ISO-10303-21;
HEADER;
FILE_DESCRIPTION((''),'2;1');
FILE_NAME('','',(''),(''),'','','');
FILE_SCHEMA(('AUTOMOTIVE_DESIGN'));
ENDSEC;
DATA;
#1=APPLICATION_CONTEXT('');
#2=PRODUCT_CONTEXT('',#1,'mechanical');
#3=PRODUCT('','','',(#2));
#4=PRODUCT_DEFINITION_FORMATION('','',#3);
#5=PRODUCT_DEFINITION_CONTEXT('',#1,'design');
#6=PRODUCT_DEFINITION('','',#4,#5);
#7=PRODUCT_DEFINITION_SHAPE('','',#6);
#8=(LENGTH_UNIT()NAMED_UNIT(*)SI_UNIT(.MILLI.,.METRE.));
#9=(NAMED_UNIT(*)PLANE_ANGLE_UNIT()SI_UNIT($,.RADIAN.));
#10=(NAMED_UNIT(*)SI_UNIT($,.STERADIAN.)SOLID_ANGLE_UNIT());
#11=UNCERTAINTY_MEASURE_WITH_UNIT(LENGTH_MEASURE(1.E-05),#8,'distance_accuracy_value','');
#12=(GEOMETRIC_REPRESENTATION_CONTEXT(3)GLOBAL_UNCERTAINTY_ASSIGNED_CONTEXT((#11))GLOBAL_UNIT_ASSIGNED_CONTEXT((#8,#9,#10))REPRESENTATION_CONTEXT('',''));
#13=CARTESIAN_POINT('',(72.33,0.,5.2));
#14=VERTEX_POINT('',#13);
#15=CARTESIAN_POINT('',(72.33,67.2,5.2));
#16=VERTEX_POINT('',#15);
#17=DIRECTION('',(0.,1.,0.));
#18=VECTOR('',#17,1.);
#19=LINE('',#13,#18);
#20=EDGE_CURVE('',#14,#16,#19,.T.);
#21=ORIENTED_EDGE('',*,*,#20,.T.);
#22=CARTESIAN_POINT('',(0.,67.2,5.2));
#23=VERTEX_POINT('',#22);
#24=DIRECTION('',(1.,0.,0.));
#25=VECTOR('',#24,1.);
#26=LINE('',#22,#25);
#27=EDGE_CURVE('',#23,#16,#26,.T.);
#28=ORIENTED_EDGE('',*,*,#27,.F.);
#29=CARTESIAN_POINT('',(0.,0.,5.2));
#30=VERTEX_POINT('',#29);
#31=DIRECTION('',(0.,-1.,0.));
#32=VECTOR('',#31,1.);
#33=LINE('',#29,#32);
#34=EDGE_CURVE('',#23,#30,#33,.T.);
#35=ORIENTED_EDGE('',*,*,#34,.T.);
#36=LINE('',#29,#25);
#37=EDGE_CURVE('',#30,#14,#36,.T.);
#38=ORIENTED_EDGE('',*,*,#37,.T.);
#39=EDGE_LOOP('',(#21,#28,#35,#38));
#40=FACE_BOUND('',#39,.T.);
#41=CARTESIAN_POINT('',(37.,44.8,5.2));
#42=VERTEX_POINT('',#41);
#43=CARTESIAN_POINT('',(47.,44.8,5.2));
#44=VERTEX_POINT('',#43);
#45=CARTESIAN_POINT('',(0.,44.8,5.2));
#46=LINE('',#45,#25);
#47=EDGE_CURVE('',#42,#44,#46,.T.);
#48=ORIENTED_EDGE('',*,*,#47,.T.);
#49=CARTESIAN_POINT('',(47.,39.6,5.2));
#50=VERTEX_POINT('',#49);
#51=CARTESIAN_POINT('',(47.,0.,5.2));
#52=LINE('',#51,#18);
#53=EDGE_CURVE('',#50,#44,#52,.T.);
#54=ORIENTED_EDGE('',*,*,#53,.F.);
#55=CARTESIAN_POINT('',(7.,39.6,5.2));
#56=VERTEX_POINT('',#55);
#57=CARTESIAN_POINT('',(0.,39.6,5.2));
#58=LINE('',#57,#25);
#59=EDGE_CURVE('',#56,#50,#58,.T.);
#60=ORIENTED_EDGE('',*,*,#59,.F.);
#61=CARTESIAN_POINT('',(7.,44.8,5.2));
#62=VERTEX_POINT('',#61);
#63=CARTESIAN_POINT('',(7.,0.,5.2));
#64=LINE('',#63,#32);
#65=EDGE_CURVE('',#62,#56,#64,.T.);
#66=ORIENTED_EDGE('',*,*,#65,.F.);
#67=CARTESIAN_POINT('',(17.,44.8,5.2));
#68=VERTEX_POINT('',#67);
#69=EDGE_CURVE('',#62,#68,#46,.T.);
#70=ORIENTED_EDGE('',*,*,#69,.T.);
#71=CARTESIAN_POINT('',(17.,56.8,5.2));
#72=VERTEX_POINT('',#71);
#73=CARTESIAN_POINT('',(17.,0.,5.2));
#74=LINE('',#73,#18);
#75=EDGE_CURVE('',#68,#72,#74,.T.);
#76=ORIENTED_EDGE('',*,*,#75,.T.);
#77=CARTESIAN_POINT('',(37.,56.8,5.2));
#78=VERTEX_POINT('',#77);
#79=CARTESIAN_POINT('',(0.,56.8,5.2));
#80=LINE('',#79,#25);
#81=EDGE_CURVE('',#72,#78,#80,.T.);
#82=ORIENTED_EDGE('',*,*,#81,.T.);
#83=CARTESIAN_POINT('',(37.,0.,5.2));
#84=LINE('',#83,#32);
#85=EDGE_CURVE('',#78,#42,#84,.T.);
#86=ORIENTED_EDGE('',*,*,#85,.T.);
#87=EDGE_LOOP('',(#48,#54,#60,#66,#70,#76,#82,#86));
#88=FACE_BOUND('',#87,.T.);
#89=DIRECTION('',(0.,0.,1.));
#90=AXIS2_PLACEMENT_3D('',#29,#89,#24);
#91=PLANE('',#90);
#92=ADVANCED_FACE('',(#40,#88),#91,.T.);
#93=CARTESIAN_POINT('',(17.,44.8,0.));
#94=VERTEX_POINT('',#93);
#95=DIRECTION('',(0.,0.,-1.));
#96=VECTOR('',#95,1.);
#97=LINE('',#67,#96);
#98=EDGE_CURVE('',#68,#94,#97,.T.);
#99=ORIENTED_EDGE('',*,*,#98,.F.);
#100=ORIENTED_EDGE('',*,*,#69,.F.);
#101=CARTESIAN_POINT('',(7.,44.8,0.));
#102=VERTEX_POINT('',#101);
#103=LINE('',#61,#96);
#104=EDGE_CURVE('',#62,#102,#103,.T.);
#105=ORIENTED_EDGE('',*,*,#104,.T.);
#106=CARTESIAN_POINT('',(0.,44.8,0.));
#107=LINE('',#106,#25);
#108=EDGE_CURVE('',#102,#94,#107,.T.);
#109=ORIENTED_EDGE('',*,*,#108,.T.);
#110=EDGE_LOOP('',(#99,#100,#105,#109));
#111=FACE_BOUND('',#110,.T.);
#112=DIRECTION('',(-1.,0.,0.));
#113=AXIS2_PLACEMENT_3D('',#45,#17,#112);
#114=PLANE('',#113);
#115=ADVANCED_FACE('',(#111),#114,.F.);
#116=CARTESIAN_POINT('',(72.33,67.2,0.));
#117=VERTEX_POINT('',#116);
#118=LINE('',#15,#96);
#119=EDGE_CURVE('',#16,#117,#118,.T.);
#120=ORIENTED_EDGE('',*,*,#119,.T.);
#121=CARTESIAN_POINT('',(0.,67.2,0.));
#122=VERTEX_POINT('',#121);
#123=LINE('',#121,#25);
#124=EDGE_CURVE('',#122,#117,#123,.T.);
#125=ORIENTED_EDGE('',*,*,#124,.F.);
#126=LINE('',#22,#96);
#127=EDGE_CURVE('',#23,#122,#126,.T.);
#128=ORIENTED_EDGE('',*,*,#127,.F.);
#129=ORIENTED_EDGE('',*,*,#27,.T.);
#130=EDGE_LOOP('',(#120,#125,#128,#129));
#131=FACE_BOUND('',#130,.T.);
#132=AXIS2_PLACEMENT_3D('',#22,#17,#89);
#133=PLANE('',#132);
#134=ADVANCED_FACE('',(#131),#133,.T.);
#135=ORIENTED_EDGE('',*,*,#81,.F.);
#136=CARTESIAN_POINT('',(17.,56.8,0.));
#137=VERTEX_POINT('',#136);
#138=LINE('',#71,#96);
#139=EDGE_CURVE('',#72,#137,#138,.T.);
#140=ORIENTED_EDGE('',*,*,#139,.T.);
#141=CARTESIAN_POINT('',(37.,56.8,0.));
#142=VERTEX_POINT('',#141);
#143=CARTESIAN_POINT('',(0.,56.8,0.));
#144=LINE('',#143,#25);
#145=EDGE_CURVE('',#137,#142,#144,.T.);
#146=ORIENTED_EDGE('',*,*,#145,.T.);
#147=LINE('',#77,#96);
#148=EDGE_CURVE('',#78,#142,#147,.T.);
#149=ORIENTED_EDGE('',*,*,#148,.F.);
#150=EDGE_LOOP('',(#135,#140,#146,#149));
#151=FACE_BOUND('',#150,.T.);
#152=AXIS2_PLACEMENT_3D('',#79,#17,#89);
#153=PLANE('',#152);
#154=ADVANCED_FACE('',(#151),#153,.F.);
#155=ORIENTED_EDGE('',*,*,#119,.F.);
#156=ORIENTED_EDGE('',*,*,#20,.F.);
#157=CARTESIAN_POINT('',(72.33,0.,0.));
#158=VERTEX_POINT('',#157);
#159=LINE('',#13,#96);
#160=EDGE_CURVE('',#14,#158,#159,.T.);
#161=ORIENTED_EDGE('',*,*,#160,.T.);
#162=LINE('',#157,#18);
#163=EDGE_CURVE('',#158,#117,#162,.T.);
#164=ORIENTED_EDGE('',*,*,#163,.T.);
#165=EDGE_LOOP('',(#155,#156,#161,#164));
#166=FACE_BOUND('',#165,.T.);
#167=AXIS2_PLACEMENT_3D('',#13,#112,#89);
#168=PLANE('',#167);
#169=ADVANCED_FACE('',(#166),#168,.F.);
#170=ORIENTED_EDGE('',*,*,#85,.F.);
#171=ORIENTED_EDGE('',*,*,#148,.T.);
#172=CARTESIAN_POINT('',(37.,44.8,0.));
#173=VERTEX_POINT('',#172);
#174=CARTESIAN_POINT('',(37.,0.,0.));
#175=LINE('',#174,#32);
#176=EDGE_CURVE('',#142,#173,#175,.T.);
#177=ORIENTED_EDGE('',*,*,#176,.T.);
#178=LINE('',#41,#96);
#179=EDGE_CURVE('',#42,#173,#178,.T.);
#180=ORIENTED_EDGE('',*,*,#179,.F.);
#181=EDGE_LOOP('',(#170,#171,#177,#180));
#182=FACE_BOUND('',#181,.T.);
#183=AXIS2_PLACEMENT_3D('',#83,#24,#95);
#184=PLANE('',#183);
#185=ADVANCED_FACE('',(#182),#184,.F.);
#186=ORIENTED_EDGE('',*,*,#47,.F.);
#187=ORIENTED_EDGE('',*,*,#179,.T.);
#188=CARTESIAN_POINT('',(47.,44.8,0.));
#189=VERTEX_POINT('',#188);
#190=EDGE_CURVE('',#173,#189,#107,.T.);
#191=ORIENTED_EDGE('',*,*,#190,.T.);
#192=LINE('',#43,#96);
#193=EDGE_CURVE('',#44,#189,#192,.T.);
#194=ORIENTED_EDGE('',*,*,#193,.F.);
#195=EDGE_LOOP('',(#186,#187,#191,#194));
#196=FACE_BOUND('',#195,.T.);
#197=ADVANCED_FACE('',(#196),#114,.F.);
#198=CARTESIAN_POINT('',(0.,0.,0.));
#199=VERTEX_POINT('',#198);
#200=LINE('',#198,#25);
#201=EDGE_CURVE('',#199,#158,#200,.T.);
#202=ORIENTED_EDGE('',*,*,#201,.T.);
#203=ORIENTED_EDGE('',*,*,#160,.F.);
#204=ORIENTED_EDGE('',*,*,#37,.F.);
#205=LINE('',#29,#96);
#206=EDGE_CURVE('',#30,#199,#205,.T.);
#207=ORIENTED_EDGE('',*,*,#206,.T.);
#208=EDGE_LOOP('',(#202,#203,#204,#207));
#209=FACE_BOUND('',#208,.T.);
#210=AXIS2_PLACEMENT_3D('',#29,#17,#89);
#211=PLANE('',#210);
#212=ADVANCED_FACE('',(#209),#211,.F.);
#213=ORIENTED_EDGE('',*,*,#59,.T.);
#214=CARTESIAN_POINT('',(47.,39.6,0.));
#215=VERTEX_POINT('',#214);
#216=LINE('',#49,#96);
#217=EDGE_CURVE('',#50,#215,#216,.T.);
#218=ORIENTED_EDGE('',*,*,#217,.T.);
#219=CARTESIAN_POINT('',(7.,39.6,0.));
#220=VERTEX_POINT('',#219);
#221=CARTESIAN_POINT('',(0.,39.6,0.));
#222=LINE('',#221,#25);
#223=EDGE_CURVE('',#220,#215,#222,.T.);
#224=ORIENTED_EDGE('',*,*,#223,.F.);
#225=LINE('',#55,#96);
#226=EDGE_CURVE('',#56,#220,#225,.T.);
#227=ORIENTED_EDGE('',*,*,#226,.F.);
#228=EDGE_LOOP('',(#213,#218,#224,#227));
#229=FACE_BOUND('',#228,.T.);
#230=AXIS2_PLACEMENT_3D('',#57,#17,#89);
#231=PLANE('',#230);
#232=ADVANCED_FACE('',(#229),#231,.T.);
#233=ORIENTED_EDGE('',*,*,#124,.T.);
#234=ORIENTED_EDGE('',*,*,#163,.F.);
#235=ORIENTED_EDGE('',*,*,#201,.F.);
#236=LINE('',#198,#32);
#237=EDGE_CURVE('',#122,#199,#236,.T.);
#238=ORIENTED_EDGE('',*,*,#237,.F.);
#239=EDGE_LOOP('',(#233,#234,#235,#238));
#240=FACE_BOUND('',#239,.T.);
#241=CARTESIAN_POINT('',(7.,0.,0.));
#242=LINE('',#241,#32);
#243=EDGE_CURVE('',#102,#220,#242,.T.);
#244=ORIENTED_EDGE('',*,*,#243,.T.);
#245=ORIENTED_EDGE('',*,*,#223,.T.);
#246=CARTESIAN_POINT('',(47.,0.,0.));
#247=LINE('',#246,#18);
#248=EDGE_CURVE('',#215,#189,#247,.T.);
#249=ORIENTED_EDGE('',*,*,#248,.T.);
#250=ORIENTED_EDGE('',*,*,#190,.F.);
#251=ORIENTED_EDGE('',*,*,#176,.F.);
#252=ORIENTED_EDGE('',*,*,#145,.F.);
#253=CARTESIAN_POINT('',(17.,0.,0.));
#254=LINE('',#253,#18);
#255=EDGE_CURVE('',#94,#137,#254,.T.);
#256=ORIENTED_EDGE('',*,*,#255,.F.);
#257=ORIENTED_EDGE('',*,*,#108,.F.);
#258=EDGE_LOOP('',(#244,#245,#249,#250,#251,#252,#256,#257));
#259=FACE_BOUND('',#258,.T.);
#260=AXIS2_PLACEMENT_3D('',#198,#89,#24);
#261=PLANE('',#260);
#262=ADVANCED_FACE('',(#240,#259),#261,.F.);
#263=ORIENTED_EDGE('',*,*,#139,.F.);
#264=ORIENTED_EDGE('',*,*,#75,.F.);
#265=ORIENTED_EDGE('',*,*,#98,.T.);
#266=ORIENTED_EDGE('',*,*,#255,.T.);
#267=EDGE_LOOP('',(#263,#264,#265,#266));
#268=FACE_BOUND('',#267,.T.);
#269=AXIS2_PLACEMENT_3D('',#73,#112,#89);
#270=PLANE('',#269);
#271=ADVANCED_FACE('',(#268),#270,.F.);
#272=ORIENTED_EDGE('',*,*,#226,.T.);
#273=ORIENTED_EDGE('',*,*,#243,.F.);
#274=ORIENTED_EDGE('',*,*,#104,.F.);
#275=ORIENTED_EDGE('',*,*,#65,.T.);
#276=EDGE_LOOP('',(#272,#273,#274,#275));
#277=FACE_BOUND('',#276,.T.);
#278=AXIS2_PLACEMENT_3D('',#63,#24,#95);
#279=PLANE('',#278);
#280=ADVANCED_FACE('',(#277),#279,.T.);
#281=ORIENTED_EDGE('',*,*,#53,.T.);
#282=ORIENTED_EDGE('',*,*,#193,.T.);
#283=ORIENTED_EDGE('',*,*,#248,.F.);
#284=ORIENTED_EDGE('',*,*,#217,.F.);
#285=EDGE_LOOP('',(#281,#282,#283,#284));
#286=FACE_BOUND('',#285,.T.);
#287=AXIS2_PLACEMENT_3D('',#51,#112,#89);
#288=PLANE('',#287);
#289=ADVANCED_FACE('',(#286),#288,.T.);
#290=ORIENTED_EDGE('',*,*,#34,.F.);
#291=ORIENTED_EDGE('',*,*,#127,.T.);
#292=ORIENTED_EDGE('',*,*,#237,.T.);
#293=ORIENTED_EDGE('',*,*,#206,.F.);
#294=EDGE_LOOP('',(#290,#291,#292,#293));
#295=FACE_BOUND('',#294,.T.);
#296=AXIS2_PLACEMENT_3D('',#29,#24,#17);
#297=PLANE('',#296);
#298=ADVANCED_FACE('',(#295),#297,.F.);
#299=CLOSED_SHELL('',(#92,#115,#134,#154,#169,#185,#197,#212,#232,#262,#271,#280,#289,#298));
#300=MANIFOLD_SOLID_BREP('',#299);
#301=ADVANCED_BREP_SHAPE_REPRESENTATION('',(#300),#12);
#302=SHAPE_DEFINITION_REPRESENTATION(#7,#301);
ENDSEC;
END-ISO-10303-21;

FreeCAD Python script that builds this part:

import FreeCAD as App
import Part
import Sketcher
from FreeCAD import Vector

doc = App.newDocument("Part")
body = doc.addObject("PartDesign::Body", "Body")

sketch1 = doc.addObject("Sketcher::SketchObject", "Sketch")
body.addObject(sketch1)
sketch1.AttachmentSupport = (doc.XY_Plane, [""])
sketch1.MapMode = "FlatFace"
sketch1.addGeometry([
    Part.LineSegment(Vector(0, 0, 0), Vector(72, 0, 0)),
    Part.LineSegment(Vector(72, 0, 0), Vector(72, 67, 0)),
    Part.LineSegment(Vector(72, 67, 0), Vector(0, 67, 0)),
    Part.LineSegment(Vector(0, 67, 0), Vector(0, 0, 0)),
    Part.LineSegment(Vector(17, 57, 0), Vector(37, 57, 0)),
    Part.LineSegment(Vector(37, 57, 0), Vector(37, 45, 0)),
    Part.LineSegment(Vector(37, 45, 0), Vector(47, 45, 0)),
    Part.LineSegment(Vector(47, 45, 0), Vector(47, 40, 0)),
    Part.LineSegment(Vector(47, 40, 0), Vector(7, 40, 0)),
    Part.LineSegment(Vector(7, 40, 0), Vector(7, 45, 0)),
    Part.LineSegment(Vector(7, 45, 0), Vector(17, 45, 0)),
    Part.LineSegment(Vector(17, 45, 0), Vector(17, 57, 0)),
], False)
sketch1.addConstraint([
    Sketcher.Constraint("Coincident", 0, 2, 1, 1),
    Sketcher.Constraint("Coincident", 1, 2, 2, 1),
    Sketcher.Constraint("Coincident", 2, 2, 3, 1),
    Sketcher.Constraint("Coincident", 3, 2, 0, 1),
    Sketcher.Constraint("Coincident", 4, 2, 5, 1),
    Sketcher.Constraint("Coincident", 5, 2, 6, 1),
    Sketcher.Constraint("Coincident", 6, 2, 7, 1),
    Sketcher.Constraint("Coincident", 7, 2, 8, 1),
    Sketcher.Constraint("Coincident", 8, 2, 9, 1),
    Sketcher.Constraint("Coincident", 9, 2, 10, 1),
    Sketcher.Constraint("Coincident", 10, 2, 11, 1),
    Sketcher.Constraint("Coincident", 11, 2, 4, 1),
    Sketcher.Constraint("Horizontal", 0),
    Sketcher.Constraint("Vertical", 1),
    Sketcher.Constraint("Horizontal", 2),
    Sketcher.Constraint("Vertical", 3),
    Sketcher.Constraint("Horizontal", 4),
    Sketcher.Constraint("Vertical", 5),
    Sketcher.Constraint("Horizontal", 6),
    Sketcher.Constraint("Vertical", 7),
    Sketcher.Constraint("Horizontal", 8),
    Sketcher.Constraint("Vertical", 9),
    Sketcher.Constraint("Horizontal", 10),
    Sketcher.Constraint("Vertical", 11),
    Sketcher.Constraint("Coincident", 3, 2, -1, 1),
    Sketcher.Constraint("Horizontal", 6, 2, 9, 2),
    Sketcher.Constraint("Equal", 6, 10),
    Sketcher.Constraint("DistanceX", 4, 1, 4, 2, 20.0),
    Sketcher.Constraint("DistanceX", 6, 1, 6, 2, 10.0),
    Sketcher.Constraint("DistanceY", 5, 2, 5, 1, 12.0),
    Sketcher.Constraint("DistanceY", 1, 1, 1, 2, 67.2),
    Sketcher.Constraint("DistanceY", 7, 2, 7, 1, 5.2),
    Sketcher.Constraint("DistanceX", -1, 1, 4, 2, 37.0),
    Sketcher.Constraint("DistanceX", 0, 1, 0, 2, 72.33),
    Sketcher.Constraint("DistanceY", -1, 1, 4, 2, 56.8),
])
pad1 = doc.addObject("PartDesign::Pad", "Pad")
body.addObject(pad1)
pad1.Profile = sketch1
pad1.Length = 5.2

doc.recompute()
